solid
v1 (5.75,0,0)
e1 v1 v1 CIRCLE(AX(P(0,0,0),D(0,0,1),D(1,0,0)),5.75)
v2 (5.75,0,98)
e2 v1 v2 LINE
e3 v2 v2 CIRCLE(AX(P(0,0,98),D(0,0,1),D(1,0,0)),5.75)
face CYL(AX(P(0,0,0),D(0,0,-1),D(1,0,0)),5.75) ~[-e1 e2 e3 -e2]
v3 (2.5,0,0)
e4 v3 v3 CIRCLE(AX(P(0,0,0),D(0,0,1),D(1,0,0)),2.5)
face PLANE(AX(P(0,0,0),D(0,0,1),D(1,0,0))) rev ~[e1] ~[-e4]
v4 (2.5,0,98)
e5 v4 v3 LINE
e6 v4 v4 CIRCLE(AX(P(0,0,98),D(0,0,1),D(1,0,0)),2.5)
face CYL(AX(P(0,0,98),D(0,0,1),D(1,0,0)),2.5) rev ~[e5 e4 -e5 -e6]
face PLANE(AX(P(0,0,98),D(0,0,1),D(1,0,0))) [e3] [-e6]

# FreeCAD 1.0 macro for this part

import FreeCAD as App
import Part
import Sketcher

doc = App.newDocument("Part")
body = doc.addObject("PartDesign::Body", "Body")

# Sketch on XY plane
sketch1 = body.newObject("Sketcher::SketchObject", "Sketch")
sketch1.AttachmentSupport = (doc.getObject("XY_Plane"), [""])
sketch1.MapMode = "FlatFace"
sketch1.addGeometry(Part.Circle(App.Vector(0, 0, 0), App.Vector(0, 0, 1), 6), False)
sketch1.addConstraint(Sketcher.Constraint("Coincident", 0, 3, -1, 1))
sketch1.addConstraint(Sketcher.Constraint("Diameter", 0, 11.5))
pad1 = body.newObject("PartDesign::Pad", "Pad")
pad1.Profile = sketch1
pad1.Length = 98

# Sketch on XY plane
sketch2 = body.newObject("Sketcher::SketchObject", "Sketch001")
sketch2.AttachmentSupport = (doc.getObject("XY_Plane"), [""])
sketch2.MapMode = "FlatFace"
sketch2.AttachmentOffset = App.Placement(App.Vector(0, 0, 98), App.Rotation())
sketch2.addGeometry(Part.Circle(App.Vector(0, 0, 0), App.Vector(0, 0, 1), 2.5), False)
sketch2.addConstraint(Sketcher.Constraint("Coincident", 0, 3, -1, 1))
sketch2.addConstraint(Sketcher.Constraint("Diameter", 0, 5.0))
pocket1 = body.newObject("PartDesign::Pocket", "Pocket")
pocket1.Profile = sketch2
pocket1.Type = "ThroughAll"

doc.recompute()
